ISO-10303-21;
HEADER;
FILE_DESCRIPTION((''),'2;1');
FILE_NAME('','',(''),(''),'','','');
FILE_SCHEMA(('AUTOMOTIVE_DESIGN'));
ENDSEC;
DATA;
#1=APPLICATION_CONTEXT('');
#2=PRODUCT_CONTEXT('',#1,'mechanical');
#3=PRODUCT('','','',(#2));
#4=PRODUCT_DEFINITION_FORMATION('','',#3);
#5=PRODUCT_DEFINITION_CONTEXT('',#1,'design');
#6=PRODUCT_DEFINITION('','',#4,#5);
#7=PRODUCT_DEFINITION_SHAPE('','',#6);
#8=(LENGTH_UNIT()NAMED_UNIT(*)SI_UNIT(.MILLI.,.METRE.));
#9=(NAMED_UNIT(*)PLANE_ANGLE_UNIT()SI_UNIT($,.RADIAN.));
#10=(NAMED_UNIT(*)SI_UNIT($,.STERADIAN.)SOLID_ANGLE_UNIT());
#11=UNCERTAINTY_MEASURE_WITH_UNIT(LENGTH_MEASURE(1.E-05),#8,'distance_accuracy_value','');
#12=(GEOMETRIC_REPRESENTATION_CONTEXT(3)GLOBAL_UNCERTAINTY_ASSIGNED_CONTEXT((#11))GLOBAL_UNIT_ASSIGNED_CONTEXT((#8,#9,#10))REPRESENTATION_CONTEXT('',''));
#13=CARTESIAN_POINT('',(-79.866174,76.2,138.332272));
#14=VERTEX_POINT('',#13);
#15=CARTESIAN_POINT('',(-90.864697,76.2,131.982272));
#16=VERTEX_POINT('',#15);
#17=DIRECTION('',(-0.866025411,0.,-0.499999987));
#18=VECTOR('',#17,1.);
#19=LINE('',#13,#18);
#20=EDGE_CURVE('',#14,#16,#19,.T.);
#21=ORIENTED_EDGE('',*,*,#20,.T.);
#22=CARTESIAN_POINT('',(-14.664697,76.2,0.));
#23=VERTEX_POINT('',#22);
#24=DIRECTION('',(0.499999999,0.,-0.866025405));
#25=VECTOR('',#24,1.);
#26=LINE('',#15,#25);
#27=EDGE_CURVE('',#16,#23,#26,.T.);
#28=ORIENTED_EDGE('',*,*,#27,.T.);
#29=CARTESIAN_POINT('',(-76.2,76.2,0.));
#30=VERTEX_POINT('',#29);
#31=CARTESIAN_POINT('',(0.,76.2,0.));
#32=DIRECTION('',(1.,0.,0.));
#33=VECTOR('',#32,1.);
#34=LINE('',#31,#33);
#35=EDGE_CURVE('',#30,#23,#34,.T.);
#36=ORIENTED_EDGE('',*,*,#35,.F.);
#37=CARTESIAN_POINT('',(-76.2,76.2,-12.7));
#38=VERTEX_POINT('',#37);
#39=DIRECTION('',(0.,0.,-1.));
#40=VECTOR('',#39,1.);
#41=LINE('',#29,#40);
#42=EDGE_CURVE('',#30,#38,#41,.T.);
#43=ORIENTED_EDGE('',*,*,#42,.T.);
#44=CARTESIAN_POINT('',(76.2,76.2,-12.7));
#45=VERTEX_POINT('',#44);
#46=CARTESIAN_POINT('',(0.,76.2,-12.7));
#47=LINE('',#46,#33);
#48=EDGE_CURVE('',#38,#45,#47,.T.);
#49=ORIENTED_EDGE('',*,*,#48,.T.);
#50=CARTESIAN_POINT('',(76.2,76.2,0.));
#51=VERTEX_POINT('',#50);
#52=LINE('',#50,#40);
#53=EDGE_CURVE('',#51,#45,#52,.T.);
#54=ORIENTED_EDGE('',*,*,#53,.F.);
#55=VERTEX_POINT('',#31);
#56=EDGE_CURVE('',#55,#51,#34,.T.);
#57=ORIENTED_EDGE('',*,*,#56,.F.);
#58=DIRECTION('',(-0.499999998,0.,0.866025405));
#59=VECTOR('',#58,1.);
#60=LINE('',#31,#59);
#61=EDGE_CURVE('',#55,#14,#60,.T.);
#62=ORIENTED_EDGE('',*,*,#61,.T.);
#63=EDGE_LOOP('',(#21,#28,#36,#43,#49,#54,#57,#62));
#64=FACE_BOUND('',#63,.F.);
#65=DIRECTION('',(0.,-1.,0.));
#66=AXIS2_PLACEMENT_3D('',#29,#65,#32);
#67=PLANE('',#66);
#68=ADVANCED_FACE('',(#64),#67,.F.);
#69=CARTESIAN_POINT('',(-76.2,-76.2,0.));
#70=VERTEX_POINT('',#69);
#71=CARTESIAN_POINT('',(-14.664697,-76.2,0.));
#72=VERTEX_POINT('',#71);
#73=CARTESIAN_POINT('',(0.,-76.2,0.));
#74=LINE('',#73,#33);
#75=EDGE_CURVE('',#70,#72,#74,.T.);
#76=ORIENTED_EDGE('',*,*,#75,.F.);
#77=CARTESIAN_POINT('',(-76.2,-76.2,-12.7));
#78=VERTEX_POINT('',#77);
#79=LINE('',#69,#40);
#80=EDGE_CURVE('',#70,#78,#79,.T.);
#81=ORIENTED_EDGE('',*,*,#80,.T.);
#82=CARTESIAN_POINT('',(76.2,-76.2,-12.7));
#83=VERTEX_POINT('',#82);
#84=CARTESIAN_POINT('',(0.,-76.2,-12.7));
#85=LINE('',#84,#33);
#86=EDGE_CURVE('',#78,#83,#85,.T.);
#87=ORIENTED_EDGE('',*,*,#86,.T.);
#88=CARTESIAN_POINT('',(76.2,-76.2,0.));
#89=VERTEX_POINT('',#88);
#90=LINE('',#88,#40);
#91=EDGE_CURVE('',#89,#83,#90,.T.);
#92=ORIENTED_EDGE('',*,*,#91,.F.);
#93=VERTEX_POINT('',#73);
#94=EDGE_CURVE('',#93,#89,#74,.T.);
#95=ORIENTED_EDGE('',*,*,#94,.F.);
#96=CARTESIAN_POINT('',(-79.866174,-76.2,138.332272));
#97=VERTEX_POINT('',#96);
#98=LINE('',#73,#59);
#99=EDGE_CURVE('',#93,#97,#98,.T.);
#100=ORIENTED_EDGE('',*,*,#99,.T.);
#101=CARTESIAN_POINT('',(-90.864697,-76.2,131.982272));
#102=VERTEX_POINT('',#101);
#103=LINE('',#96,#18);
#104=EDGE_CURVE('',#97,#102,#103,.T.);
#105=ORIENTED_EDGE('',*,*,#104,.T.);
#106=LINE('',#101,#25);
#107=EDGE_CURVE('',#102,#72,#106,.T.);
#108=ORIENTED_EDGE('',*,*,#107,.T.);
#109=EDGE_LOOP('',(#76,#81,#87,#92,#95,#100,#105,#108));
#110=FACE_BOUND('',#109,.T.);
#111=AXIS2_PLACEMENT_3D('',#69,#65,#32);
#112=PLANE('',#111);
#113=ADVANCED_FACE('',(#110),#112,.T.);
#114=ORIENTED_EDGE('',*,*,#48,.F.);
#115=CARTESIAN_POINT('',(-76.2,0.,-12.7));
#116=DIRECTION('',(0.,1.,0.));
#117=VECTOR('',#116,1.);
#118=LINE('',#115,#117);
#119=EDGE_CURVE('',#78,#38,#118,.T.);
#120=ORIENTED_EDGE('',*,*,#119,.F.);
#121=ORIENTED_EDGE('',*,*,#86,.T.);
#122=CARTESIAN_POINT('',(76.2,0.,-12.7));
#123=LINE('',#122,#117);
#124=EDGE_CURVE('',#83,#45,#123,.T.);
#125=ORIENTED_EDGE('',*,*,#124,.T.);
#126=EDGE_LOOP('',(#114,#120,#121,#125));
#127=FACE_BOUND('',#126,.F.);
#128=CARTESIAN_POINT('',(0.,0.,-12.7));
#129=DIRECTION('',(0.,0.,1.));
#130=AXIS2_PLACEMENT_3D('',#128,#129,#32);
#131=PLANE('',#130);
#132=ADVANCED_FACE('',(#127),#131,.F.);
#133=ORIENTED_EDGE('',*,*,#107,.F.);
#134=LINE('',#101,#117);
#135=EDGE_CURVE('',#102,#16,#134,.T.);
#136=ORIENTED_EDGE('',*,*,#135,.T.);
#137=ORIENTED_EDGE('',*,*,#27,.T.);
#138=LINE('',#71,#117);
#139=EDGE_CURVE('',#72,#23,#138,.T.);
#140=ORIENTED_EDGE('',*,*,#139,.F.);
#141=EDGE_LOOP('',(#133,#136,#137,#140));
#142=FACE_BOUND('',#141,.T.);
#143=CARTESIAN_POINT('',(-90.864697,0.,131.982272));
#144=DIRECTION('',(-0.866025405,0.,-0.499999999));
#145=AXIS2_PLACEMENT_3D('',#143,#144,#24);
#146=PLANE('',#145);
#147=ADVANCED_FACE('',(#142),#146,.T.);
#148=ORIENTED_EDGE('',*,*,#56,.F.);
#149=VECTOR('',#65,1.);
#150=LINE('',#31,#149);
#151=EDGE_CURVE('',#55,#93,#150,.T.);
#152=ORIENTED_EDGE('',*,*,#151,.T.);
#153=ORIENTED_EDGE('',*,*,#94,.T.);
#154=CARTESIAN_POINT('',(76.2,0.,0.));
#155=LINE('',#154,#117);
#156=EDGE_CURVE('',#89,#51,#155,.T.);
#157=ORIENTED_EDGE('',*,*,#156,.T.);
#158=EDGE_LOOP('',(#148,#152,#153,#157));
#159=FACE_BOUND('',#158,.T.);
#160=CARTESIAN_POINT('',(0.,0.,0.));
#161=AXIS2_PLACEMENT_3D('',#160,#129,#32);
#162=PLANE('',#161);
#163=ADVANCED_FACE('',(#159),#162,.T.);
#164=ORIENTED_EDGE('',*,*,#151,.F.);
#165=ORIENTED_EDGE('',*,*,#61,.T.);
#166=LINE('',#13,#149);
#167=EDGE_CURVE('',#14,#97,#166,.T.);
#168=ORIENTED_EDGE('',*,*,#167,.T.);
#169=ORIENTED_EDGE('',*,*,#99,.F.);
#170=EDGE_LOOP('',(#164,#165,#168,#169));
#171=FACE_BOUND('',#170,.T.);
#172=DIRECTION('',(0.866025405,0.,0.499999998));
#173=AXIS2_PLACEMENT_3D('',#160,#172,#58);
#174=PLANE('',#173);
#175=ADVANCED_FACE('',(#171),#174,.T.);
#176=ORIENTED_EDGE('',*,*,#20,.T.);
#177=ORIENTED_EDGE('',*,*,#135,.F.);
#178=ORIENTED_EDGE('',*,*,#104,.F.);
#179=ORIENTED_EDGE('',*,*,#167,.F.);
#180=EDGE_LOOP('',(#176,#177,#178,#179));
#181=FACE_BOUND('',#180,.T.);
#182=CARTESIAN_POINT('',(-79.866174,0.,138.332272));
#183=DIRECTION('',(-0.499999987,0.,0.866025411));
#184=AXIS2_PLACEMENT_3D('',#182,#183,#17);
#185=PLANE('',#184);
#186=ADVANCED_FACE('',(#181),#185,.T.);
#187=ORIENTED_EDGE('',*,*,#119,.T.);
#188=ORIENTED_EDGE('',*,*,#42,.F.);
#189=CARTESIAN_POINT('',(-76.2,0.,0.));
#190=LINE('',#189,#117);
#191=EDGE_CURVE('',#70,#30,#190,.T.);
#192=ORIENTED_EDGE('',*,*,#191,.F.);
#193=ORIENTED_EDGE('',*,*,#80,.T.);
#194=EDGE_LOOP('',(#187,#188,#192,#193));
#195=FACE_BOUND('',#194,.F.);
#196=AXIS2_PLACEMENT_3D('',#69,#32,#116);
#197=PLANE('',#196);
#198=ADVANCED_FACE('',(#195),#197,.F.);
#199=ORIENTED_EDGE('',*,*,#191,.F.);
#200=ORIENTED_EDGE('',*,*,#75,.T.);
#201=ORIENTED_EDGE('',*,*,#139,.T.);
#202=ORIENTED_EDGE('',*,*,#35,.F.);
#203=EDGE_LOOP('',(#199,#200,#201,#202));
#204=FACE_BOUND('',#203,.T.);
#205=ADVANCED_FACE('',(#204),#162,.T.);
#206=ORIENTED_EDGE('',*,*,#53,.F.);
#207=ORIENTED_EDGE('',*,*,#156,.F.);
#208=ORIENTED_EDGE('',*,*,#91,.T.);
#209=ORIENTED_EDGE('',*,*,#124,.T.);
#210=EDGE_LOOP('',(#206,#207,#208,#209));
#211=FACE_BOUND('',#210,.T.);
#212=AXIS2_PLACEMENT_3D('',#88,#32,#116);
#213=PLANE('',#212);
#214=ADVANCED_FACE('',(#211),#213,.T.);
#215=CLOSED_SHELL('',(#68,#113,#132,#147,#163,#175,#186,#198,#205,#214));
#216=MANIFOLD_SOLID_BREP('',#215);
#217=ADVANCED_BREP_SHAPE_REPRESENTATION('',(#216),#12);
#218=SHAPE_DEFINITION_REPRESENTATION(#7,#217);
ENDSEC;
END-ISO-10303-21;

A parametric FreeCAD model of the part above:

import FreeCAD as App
import Part
import Sketcher

V = App.Vector
Q = App.Units.Quantity


def add_polygon(sketch, points):
    """Adds a closed chain of lines whose ends are joined by coincident constraints."""
    first, n = sketch.GeometryCount, len(points)
    for a, b in zip(points, points[1:] + points[:1]):
        sketch.addGeometry(Part.LineSegment(App.Vector(*a, 0), App.Vector(*b, 0)), False)
    for i in range(n):
        sketch.addConstraint(Sketcher.Constraint("Coincident", first + i, 2, first + (i + 1) % n, 1))

doc = App.newDocument("Part")
params = doc.addObject("Spreadsheet::Sheet", "Params")
for row, (alias, value) in enumerate([
    ("sketch1_width", "6 in"),
    ("pad1_length", "0.5 in"),
    ("sketch2_length", "6 in"),
    ("sketch2_length2", "0.5 in"),
    ("pad2_length", "6 in"),
], start=1):
    params.set(f"A{row}", alias)
    params.set(f"B{row}", "=" + value)
    params.setAlias(f"B{row}", alias)

body = doc.addObject("PartDesign::Body", "Body")

sketch1 = body.newObject("Sketcher::SketchObject", "Sketch")
sketch1.AttachmentSupport = (doc.getObject("XY_Plane"), [""])
sketch1.MapMode = "FlatFace"
add_polygon(sketch1, [(-76, 76), (-76, -76), (76, -76), (76, 76)])
sketch1.addConstraint([
    Sketcher.Constraint("Vertical", 0),
    Sketcher.Constraint("Horizontal", 1),
    Sketcher.Constraint("Vertical", 2),
    Sketcher.Constraint("Horizontal", 3),
    Sketcher.Constraint("Symmetric", 0, 2, 2, 2, -1, 1),
    Sketcher.Constraint("Equal", 3, 0),
    Sketcher.Constraint("DistanceX", 1, 1, 1, 2, Q("6 in")),
])
sketch1.setExpression("Constraints[10]", "Params.sketch1_width")
pad1 = body.newObject("PartDesign::Pad", "Pad")
pad1.Profile = sketch1
pad1.setExpression("Length", "Params.pad1_length")
pad1.Reversed = True

sketch2 = body.newObject("Sketcher::SketchObject", "Sketch001")
sketch2.AttachmentSupport = (doc.getObject("XZ_Plane"), [""])
sketch2.MapMode = "FlatFace"
add_polygon(sketch2, [(-15, 0), (0, 0), (-80, 138), (-91, 132)])
sketch2.addConstraint([
    Sketcher.Constraint("Horizontal", 0),
    Sketcher.Constraint("Coincident", 0, 2, -1, 1),
    Sketcher.Constraint("Perpendicular", 1, 2),
    Sketcher.Constraint("Perpendicular", 2, 3),
    Sketcher.Constraint("Distance", 3, Q("6 in")),
    Sketcher.Constraint("Angle", 1, Q("120 deg")),
    Sketcher.Constraint("Distance", 2, Q("0.5 in")),
])
sketch2.setExpression("Constraints[8]", "Params.sketch2_length")
sketch2.setExpression("Constraints[10]", "Params.sketch2_length2")
pad2 = body.newObject("PartDesign::Pad", "Pad001")
pad2.Profile = sketch2
pad2.setExpression("Length", "Params.pad2_length")
pad2.Midplane = True

doc.recompute()
